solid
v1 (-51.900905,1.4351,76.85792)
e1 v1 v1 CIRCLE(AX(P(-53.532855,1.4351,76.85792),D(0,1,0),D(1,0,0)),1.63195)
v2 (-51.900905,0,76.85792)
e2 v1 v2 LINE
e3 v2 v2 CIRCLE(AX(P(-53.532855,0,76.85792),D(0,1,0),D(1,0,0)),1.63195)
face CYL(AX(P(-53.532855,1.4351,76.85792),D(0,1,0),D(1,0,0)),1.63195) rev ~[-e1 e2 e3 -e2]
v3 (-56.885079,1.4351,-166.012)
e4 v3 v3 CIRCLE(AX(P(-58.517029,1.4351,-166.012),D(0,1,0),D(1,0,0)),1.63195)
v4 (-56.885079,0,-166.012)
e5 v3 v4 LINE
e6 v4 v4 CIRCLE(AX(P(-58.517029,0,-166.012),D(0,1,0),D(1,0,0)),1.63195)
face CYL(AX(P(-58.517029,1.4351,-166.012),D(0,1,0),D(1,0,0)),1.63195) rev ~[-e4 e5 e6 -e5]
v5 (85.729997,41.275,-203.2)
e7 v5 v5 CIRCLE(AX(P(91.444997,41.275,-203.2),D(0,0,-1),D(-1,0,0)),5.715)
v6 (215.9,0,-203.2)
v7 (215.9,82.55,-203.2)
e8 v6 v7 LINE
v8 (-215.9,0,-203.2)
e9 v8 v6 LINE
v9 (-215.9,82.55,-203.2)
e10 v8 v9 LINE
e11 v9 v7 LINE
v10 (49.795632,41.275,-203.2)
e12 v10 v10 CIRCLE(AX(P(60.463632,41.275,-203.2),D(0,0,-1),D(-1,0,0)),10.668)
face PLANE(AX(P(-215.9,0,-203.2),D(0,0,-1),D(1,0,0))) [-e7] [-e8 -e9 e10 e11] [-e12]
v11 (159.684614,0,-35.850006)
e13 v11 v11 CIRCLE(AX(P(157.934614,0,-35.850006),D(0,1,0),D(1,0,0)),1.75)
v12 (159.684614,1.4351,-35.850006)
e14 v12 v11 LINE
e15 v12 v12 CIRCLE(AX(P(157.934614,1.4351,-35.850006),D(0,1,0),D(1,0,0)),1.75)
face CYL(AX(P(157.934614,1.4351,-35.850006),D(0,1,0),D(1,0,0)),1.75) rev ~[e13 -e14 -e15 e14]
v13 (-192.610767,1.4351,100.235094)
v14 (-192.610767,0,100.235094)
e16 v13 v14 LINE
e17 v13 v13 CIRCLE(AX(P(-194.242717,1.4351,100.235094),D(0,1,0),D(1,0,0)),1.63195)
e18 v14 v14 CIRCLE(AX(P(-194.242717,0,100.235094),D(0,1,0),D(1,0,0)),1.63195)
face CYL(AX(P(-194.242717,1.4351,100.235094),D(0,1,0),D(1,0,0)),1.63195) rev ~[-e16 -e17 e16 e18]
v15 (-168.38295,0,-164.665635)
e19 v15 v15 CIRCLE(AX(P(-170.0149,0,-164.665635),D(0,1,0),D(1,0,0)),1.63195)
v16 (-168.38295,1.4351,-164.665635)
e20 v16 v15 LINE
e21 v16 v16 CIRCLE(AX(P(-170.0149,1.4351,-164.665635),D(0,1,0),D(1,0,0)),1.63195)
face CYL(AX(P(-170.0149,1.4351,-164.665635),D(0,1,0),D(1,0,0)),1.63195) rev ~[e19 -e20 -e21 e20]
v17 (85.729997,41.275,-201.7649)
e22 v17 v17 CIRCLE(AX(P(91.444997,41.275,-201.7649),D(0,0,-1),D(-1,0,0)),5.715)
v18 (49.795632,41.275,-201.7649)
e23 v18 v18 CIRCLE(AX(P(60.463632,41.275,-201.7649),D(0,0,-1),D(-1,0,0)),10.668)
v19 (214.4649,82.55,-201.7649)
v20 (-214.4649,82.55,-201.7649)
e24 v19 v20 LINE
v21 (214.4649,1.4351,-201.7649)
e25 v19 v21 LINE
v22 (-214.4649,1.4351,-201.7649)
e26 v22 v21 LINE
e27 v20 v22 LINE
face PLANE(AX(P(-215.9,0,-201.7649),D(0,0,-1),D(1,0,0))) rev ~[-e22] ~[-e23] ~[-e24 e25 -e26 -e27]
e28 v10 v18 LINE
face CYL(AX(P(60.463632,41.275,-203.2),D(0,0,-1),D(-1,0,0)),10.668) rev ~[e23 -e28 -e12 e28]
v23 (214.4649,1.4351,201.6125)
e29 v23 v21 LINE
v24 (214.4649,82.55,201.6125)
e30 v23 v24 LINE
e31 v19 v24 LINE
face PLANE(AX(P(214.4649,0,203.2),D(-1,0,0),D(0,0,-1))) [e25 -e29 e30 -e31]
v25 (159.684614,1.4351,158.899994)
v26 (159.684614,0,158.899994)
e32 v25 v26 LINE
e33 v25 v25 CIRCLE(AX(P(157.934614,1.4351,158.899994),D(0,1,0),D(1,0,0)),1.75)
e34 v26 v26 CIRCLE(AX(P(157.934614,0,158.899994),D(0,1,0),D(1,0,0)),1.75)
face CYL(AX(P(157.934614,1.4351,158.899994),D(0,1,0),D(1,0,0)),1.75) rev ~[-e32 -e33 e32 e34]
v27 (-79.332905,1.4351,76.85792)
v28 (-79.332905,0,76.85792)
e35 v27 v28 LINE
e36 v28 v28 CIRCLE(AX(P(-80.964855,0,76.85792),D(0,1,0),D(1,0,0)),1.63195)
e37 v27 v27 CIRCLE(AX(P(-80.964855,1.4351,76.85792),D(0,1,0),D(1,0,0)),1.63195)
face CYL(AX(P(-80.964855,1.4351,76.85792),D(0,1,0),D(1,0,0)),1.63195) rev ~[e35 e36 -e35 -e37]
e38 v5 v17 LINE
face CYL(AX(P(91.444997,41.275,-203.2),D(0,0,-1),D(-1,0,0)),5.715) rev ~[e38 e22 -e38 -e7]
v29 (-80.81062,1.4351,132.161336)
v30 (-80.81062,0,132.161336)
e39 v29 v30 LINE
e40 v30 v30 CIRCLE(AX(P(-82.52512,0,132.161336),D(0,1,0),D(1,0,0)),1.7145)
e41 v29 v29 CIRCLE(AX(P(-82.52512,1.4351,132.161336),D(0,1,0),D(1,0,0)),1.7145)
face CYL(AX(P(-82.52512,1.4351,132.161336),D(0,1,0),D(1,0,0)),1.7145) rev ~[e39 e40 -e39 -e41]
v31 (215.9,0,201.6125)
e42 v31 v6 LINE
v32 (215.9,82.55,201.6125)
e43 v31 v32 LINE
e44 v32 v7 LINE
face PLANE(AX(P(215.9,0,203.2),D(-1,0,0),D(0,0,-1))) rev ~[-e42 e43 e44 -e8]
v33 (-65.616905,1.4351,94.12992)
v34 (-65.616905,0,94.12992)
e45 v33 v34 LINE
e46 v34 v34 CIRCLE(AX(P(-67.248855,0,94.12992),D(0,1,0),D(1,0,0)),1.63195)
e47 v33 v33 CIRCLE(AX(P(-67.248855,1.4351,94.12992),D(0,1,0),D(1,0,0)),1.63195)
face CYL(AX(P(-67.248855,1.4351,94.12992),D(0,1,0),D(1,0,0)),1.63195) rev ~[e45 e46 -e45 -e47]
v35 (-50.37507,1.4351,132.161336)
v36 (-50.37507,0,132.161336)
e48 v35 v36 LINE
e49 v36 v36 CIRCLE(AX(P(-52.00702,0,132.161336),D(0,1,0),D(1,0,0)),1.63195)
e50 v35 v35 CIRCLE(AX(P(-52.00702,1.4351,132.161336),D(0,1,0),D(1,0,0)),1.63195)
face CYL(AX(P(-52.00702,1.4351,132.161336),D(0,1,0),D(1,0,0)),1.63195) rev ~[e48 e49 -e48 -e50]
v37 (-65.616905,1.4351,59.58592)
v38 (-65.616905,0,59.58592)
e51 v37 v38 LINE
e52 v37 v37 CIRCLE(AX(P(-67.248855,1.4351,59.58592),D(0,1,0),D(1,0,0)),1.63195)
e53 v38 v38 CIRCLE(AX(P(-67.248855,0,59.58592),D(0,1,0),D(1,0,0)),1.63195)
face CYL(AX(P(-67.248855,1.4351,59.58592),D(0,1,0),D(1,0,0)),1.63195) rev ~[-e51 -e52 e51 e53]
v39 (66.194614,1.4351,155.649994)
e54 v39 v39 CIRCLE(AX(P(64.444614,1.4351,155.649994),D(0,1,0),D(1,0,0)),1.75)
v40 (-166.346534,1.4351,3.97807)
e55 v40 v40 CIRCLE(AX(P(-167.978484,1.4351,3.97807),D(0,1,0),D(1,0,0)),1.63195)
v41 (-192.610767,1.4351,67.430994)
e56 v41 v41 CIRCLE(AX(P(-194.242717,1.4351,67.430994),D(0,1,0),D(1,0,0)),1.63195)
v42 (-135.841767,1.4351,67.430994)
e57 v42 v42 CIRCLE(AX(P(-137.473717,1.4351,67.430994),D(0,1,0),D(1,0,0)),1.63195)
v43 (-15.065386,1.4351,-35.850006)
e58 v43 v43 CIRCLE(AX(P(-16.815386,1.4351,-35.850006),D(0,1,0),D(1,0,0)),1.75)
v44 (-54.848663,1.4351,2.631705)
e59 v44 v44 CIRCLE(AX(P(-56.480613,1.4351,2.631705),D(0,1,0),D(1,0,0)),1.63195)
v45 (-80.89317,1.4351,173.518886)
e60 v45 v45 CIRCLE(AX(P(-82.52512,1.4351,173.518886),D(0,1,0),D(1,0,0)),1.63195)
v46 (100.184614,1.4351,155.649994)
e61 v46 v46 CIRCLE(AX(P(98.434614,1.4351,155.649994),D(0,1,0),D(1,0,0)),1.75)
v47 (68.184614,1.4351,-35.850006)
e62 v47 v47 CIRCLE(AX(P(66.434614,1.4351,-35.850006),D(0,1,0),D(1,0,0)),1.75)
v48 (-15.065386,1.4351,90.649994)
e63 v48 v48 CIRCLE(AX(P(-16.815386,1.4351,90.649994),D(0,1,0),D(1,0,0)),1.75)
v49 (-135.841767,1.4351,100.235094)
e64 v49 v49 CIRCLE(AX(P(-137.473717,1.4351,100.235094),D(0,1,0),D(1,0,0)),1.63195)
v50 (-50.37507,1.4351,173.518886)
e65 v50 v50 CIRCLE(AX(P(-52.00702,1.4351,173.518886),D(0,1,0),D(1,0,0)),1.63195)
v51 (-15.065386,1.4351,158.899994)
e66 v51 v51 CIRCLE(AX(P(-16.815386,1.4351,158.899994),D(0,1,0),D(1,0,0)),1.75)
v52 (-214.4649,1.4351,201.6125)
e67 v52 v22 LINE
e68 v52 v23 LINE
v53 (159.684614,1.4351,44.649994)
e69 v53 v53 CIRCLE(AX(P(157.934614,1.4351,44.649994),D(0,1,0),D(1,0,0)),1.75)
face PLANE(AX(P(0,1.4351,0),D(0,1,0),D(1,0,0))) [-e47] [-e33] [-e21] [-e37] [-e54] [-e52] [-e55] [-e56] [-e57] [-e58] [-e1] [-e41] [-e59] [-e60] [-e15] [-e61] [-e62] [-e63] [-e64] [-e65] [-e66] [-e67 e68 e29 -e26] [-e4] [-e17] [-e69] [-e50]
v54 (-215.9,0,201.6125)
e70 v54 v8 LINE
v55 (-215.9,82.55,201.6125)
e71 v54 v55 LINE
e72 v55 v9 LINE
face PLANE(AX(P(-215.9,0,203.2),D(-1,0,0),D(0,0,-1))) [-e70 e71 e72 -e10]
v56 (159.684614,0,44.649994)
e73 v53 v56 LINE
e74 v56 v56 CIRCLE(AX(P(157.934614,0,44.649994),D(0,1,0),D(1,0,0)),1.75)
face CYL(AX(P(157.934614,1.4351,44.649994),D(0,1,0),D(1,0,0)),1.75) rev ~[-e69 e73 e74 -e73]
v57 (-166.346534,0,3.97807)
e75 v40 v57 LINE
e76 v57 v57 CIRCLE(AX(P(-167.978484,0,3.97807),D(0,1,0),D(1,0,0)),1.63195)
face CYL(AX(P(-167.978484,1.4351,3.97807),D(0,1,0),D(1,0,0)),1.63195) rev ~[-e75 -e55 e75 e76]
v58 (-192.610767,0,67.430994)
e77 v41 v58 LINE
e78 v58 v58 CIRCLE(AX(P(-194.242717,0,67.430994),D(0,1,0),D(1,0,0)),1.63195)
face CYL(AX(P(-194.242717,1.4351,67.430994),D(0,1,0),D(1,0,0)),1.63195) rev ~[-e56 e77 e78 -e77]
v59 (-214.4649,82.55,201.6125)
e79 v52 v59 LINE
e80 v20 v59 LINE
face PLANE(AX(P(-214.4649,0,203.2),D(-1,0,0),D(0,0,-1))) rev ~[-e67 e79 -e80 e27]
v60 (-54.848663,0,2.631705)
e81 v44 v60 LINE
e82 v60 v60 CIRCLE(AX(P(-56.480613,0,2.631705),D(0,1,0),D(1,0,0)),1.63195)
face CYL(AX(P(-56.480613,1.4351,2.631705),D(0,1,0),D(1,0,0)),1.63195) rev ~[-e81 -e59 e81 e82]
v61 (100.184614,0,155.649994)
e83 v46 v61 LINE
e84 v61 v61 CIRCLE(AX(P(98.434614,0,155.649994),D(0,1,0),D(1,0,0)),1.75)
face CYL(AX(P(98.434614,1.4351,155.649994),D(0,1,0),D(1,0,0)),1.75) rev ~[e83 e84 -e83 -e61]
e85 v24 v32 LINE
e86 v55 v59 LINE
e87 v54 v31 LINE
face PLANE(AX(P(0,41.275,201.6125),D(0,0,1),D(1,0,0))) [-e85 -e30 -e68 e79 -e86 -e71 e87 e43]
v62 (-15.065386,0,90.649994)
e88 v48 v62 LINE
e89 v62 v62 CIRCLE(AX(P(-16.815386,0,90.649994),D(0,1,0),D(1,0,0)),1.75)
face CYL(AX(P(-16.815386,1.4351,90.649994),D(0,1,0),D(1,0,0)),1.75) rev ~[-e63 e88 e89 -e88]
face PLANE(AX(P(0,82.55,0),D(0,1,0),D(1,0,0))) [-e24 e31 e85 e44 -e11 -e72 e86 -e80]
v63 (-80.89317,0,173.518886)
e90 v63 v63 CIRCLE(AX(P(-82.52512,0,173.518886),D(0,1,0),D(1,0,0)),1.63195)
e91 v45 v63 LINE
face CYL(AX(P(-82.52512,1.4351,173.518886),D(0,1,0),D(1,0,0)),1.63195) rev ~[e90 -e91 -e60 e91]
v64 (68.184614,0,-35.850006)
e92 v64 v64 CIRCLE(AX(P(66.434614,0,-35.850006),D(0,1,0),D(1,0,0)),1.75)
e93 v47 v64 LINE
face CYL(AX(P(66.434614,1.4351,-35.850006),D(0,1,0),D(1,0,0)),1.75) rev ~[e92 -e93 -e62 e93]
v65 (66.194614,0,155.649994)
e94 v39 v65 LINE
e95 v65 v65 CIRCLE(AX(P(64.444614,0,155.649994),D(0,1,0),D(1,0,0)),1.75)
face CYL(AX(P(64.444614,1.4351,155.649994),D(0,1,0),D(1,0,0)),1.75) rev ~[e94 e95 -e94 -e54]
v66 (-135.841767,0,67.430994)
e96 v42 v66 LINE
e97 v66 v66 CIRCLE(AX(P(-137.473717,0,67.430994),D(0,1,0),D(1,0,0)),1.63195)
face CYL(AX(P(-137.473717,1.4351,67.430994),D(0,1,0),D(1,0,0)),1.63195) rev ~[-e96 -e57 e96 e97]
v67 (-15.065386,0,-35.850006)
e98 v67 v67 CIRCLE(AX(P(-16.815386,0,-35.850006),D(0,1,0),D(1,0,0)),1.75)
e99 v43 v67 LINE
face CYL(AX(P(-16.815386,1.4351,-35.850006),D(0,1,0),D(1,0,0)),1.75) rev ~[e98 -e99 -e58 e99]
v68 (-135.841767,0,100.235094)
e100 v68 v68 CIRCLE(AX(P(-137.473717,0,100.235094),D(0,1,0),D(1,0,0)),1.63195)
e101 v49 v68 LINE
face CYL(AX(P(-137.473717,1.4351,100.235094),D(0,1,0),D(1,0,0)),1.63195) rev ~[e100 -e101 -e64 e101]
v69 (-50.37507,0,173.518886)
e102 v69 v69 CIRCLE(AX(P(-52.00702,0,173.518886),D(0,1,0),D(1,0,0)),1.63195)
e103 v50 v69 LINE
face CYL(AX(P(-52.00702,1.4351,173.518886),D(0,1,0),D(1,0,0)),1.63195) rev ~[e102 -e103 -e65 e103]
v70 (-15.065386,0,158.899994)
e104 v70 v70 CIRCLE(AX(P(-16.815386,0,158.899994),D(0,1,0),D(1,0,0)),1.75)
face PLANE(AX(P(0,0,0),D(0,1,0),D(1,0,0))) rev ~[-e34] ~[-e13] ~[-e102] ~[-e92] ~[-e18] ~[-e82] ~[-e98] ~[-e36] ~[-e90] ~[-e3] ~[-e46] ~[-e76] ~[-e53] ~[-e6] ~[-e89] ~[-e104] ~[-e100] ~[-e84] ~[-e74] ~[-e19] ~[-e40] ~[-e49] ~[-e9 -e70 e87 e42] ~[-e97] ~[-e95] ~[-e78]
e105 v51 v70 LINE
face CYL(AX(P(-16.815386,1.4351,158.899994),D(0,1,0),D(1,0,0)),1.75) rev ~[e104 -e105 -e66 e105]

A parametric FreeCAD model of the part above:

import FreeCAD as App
import Part
import Sketcher
from FreeCAD import Vector
Q = App.Units.Quantity


def faces_at(feature, points):
    """Names of the faces that lie closest to the given points."""
    faces = feature.Shape.Faces
    near = lambda p: min(range(len(faces)), key=lambda i: faces[i].distToShape(Part.Vertex(*p))[0])
    return sorted({f"Face{near(p) + 1}" for p in points})

doc = App.newDocument("Part")
body = doc.addObject("PartDesign::Body", "Body")

# Sketch on XZ plane
sketch1 = body.newObject("Sketcher::SketchObject", "Sketch")
sketch1.AttachmentSupport = (doc.getObject("XZ_Plane"), [""])
sketch1.MapMode = "FlatFace"
sketch1.addGeometry([
    Part.LineSegment(Vector(-215.9, -203.2, 0), Vector(-215.9, 203.2, 0)),
    Part.LineSegment(Vector(-215.9, 203.2, 0), Vector(215.9, 203.2, 0)),
    Part.LineSegment(Vector(215.9, 203.2, 0), Vector(215.9, -203.2, 0)),
    Part.LineSegment(Vector(215.9, -203.2, 0), Vector(-215.9, -203.2, 0)),
], False)
sketch1.addConstraint([
    Sketcher.Constraint("Coincident", 0, 2, 1, 1),
    Sketcher.Constraint("Coincident", 1, 2, 2, 1),
    Sketcher.Constraint("Coincident", 2, 2, 3, 1),
    Sketcher.Constraint("Coincident", 3, 2, 0, 1),
    Sketcher.Constraint("Vertical", 0),
    Sketcher.Constraint("Horizontal", 1),
    Sketcher.Constraint("Vertical", 2),
    Sketcher.Constraint("Horizontal", 3),
    Sketcher.Constraint("Symmetric", 0, 2, 2, 2, -1, 1),
    Sketcher.Constraint("DistanceX", 1, 1, 1, 2, Q("17 in")),
    Sketcher.Constraint("DistanceY", 0, 1, 0, 2, Q("16 in")),
])
pad1 = body.newObject("PartDesign::Pad", "Pad")
pad1.Profile = sketch1
pad1.Length = Q("3.25 in")
pad1.Reversed = True
doc.recompute()

thickness = body.newObject("PartDesign::Thickness", "Thickness")
thickness.Base = (pad1, faces_at(pad1, [(0, 82.55, 0)]))
thickness.Value = Q("0.0565 in")
thickness.Reversed = True
thickness.Join = "Intersection"

# Sketch on XY plane
sketch2 = body.newObject("Sketcher::SketchObject", "Sketch001")
sketch2.AttachmentSupport = (doc.getObject("XY_Plane"), [""])
sketch2.MapMode = "FlatFace"
sketch2.AttachmentOffset = App.Placement(Vector(0, 0, 8 * 25.4), App.Rotation())
sketch2.addGeometry([
    Part.LineSegment(Vector(-215.9, 82.55, 0), Vector(-215.9, 0, 0)),
    Part.LineSegment(Vector(-215.9, 0, 0), Vector(215.9, 0, 0)),
    Part.LineSegment(Vector(215.9, 0, 0), Vector(215.9, 82.55, 0)),
    Part.LineSegment(Vector(215.9, 82.55, 0), Vector(-215.9, 82.55, 0)),
], False)
sketch2.addConstraint([
    Sketcher.Constraint("Coincident", 0, 2, 1, 1),
    Sketcher.Constraint("Coincident", 1, 2, 2, 1),
    Sketcher.Constraint("Coincident", 2, 2, 3, 1),
    Sketcher.Constraint("Coincident", 3, 2, 0, 1),
    Sketcher.Constraint("Vertical", 0),
    Sketcher.Constraint("Horizontal", 1),
    Sketcher.Constraint("Vertical", 2),
    Sketcher.Constraint("Horizontal", 3),
    Sketcher.Constraint("Symmetric", 0, 2, 1, 2, -1, 1),
    Sketcher.Constraint("DistanceX", 1, 1, 1, 2, Q("17 in")),
    Sketcher.Constraint("DistanceY", 0, 2, 0, 1, Q("3.25 in")),
])
pocket1 = body.newObject("PartDesign::Pocket", "Pocket")
pocket1.Profile = sketch2
pocket1.Length = Q("0.0625 in")

# Sketch on XZ plane
sketch3 = body.newObject("Sketcher::SketchObject", "Sketch002")
sketch3.AttachmentSupport = (doc.getObject("XZ_Plane"), [""])
sketch3.MapMode = "FlatFace"
sketch3.AttachmentOffset = App.Placement(Vector(0, 0, -0.0565 * 25.4), App.Rotation())
sketch3.addGeometry([
    Part.Circle(Vector(-170.0149, -164.665635, 0), Vector(0, 0, 1), 1.63195),
    Part.Circle(Vector(-58.517029, -166.012, 0), Vector(0, 0, 1), 1.63195),
    Part.Circle(Vector(-167.978484, 3.97807, 0), Vector(0, 0, 1), 1.63195),
    Part.Circle(Vector(-56.480613, 2.631705, 0), Vector(0, 0, 1), 1.63195),
], False)
sketch3.addConstraint([
    Sketcher.Constraint("Equal", 0, 1),
    Sketcher.Constraint("Equal", 1, 2),
    Sketcher.Constraint("Equal", 2, 3),
    Sketcher.Constraint("Diameter", 0, Q("0.1285 in")),
    Sketcher.Constraint("DistanceX", 0, 3, -1, 1, Q("6.6935 in")),
    Sketcher.Constraint("DistanceY", 1, 3, -1, 1, Q("166.012 mm")),
    Sketcher.Constraint("DistanceX", 1, 3, -1, 1, Q("58.517029 mm")),
    Sketcher.Constraint("DistanceY", -1, 1, 2, 3, Q("3.97807 mm")),
    Sketcher.Constraint("DistanceX", 2, 3, 3, 3, Q("111.497871 mm")),
    Sketcher.Constraint("DistanceY", 0, 3, 3, 3, Q("167.29734 mm")),
    Sketcher.Constraint("DistanceY", 0, 3, -1, 1, Q("164.665635 mm")),
    Sketcher.Constraint("DistanceX", 2, 3, -1, 1, Q("167.978484 mm")),
])
pocket2 = body.newObject("PartDesign::Pocket", "Pocket001")
pocket2.Profile = sketch3
pocket2.Length = Q("6.3 in")
pocket2.Reversed = True

# Sketch on XY plane
sketch4 = body.newObject("Sketcher::SketchObject", "Sketch003")
sketch4.AttachmentSupport = (doc.getObject("XY_Plane"), [""])
sketch4.MapMode = "FlatFace"
sketch4.AttachmentOffset = App.Placement(Vector(0, 0, -8 * 25.4), App.Rotation())
sketch4.addGeometry([
    Part.Circle(Vector(60.463632, 41.275, 0), Vector(0, 0, 1), 10.668),
    Part.Circle(Vector(91.444997, 41.275, 0), Vector(0, 0, 1), 5.715),
], False)
sketch4.addConstraint([
    Sketcher.Constraint("Horizontal", 0, 3, 1, 3),
    Sketcher.Constraint("Diameter", 0, Q("0.84 in")),
    Sketcher.Constraint("Diameter", 1, Q("0.45 in")),
    Sketcher.Constraint("DistanceY", -1, 1, 0, 3, Q("1.625 in")),
    Sketcher.Constraint("DistanceX", -1, 1, 0, 3, Q("60.463632 mm")),
    Sketcher.Constraint("DistanceX", -1, 1, 1, 3, Q("91.444997 mm")),
])
pocket3 = body.newObject("PartDesign::Pocket", "Pocket002")
pocket3.Profile = sketch4
pocket3.Type = "ThroughAll"
pocket3.Reversed = True

# Sketch on XZ plane
sketch5 = body.newObject("Sketcher::SketchObject", "Sketch004")
sketch5.AttachmentSupport = (doc.getObject("XZ_Plane"), [""])
sketch5.MapMode = "FlatFace"
sketch5.AttachmentOffset = App.Placement(Vector(0, 0, -0.0565 * 25.4), App.Rotation())
sketch5.addGeometry([
    Part.Circle(Vector(-52.00702, 132.161336, 0), Vector(0, 0, 1), 1.63195),  # 0
    Part.Circle(Vector(-52.00702, 173.518886, 0), Vector(0, 0, 1), 1.63195),  # 1
    Part.Circle(Vector(-82.52512, 173.518886, 0), Vector(0, 0, 1), 1.63195),  # 2
    Part.Circle(Vector(-82.52512, 132.161336, 0), Vector(0, 0, 1), 1.7145),  # 3
    Part.Circle(Vector(-137.473717, 100.235094, 0), Vector(0, 0, 1), 1.63195),  # 4
    Part.Circle(Vector(-194.242717, 100.235094, 0), Vector(0, 0, 1), 1.63195),  # 5
    Part.Circle(Vector(-137.473717, 67.430994, 0), Vector(0, 0, 1), 1.63195),  # 6
    Part.Circle(Vector(-194.242717, 67.430994, 0), Vector(0, 0, 1), 1.63195),  # 7
], False)
sketch5.addConstraint([
    Sketcher.Constraint("Equal", 0, 1),
    Sketcher.Constraint("Equal", 1, 2),
    Sketcher.Constraint("Equal", 2, 4),
    Sketcher.Constraint("Equal", 4, 5),
    Sketcher.Constraint("Equal", 5, 6),
    Sketcher.Constraint("Equal", 6, 7),
    Sketcher.Constraint("Horizontal", 1, 3, 2, 3),
    Sketcher.Constraint("Horizontal", 0, 3, 3, 3),
    Sketcher.Constraint("Horizontal", 4, 3, 5, 3),
    Sketcher.Constraint("Horizontal", 6, 3, 7, 3),
    Sketcher.Constraint("Vertical", 0, 3, 1, 3),
    Sketcher.Constraint("Vertical", 2, 3, 3, 3),
    Sketcher.Constraint("Vertical", 4, 3, 6, 3),
    Sketcher.Constraint("Vertical", 5, 3, 7, 3),
    Sketcher.Constraint("Diameter", 3, Q("0.135 in")),
    Sketcher.Constraint("Diameter", 0, Q("0.1285 in")),
    Sketcher.Constraint("DistanceX", 5, 3, 4, 3, Q("2.235 in")),
    Sketcher.Constraint("DistanceX", 2, 3, 1, 3, Q("1.2015 in")),
    Sketcher.Constraint("DistanceY", 6, 3, 4, 3, Q("1.2915 in")),
    Sketcher.Constraint("DistanceX", 0, 3, -1, 1, Q("52.00702 mm")),
    Sketcher.Constraint("DistanceY", 0, 3, 1, 3, Q("41.35755 mm")),
    Sketcher.Constraint("DistanceY", 4, 3, 3, 3, Q("31.926241 mm")),
    Sketcher.Constraint("DistanceY", -1, 1, 0, 3, Q("132.161336 mm")),
    Sketcher.Constraint("DistanceX", 4, 3, -1, 1, Q("137.473717 mm")),
])
pocket4 = body.newObject("PartDesign::Pocket", "Pocket003")
pocket4.Profile = sketch5
pocket4.Length = Q("0.1 in")
pocket4.Reversed = True

# Sketch on XZ plane
sketch6 = body.newObject("Sketcher::SketchObject", "Sketch005")
sketch6.AttachmentSupport = (doc.getObject("XZ_Plane"), [""])
sketch6.MapMode = "FlatFace"
sketch6.AttachmentOffset = App.Placement(Vector(0, 0, -0.0565 * 25.4), App.Rotation())
sketch6.addGeometry([
    Part.Circle(Vector(157.934614, -35.850006, 0), Vector(0, 0, 1), 1.75),  # 0
    Part.Circle(Vector(157.934614, 44.649994, 0), Vector(0, 0, 1), 1.75),  # 1
    Part.Circle(Vector(157.934614, 158.899994, 0), Vector(0, 0, 1), 1.75),  # 2
    Part.Circle(Vector(98.434614, 155.649994, 0), Vector(0, 0, 1), 1.75),  # 3
    Part.Circle(Vector(64.444614, 155.649994, 0), Vector(0, 0, 1), 1.75),  # 4
    Part.Circle(Vector(-16.815386, 158.899994, 0), Vector(0, 0, 1), 1.75),  # 5
    Part.Circle(Vector(66.434614, -35.850006, 0), Vector(0, 0, 1), 1.75),  # 6
    Part.Circle(Vector(-16.815386, -35.850006, 0), Vector(0, 0, 1), 1.75),  # 7
    Part.Circle(Vector(-16.815386, 90.649994, 0), Vector(0, 0, 1), 1.75),  # 8
], False)
sketch6.addConstraint([
    Sketcher.Constraint("Equal", 0, 1),
    Sketcher.Constraint("Equal", 1, 2),
    Sketcher.Constraint("Equal", 2, 3),
    Sketcher.Constraint("Equal", 3, 4),
    Sketcher.Constraint("Equal", 4, 5),
    Sketcher.Constraint("Equal", 5, 6),
    Sketcher.Constraint("Equal", 6, 7),
    Sketcher.Constraint("Equal", 7, 8),
    Sketcher.Constraint("Horizontal", 3, 3, 4, 3),
    Sketcher.Constraint("Horizontal", 2, 3, 5, 3),
    Sketcher.Constraint("Horizontal", 0, 3, 6, 3),
    Sketcher.Constraint("Horizontal", 6, 3, 7, 3),
    Sketcher.Constraint("Vertical", 0, 3, 1, 3),
    Sketcher.Constraint("Vertical", 1, 3, 2, 3),
    Sketcher.Constraint("Vertical", 5, 3, 7, 3),
    Sketcher.Constraint("Vertical", 7, 3, 8, 3),
    Sketcher.Constraint("Diameter", 0, Q("3.5 mm")),
    Sketcher.Constraint("DistanceY", 0, 3, 1, 3, Q("80.5 mm")),
    Sketcher.Constraint("DistanceY", 1, 3, 2, 3, Q("114.25 mm")),
    Sketcher.Constraint("DistanceX", 3, 3, 2, 3, Q("59.5 mm")),
    Sketcher.Constraint("DistanceY", 3, 3, 2, 3, Q("3.25 mm")),
    Sketcher.Constraint("DistanceX", 4, 3, 3, 3, Q("33.99 mm")),
    Sketcher.Constraint("DistanceX", 5, 3, 4, 3, Q("81.26 mm")),
    Sketcher.Constraint("DistanceX", 6, 3, 0, 3, Q("91.5 mm")),
    Sketcher.Constraint("DistanceY", 8, 3, 5, 3, Q("68.25 mm")),
    Sketcher.Constraint("DistanceX", -1, 1, 0, 3, Q("157.934614 mm")),
    Sketcher.Constraint("DistanceY", 0, 3, -1, 1, Q("35.850006 mm")),
])
pocket5 = body.newObject("PartDesign::Pocket", "Pocket004")
pocket5.Profile = sketch6
pocket5.Length = Q("6.3 in")
pocket5.Reversed = True

# Sketch on XZ plane
sketch7 = body.newObject("Sketcher::SketchObject", "Sketch006")
sketch7.AttachmentSupport = (doc.getObject("XZ_Plane"), [""])
sketch7.MapMode = "FlatFace"
sketch7.AttachmentOffset = App.Placement(Vector(0, 0, -0.0565 * 25.4), App.Rotation())
sketch7.addGeometry([
    Part.Circle(Vector(-67.248855, 59.58592, 0), Vector(0, 0, 1), 1.63195),
    Part.Circle(Vector(-67.248855, 94.12992, 0), Vector(0, 0, 1), 1.63195),
    Part.Circle(Vector(-80.964855, 76.85792, 0), Vector(0, 0, 1), 1.63195),
    Part.Circle(Vector(-53.532855, 76.85792, 0), Vector(0, 0, 1), 1.63195),
], False)
sketch7.addConstraint([
    Sketcher.Constraint("Equal", 0, 1),
    Sketcher.Constraint("Equal", 1, 2),
    Sketcher.Constraint("Equal", 2, 3),
    Sketcher.Constraint("Horizontal", 2, 3, 3, 3),
    Sketcher.Constraint("Vertical", 0, 3, 1, 3),
    Sketcher.Constraint("Diameter", 0, Q("0.1285 in")),
    Sketcher.Constraint("DistanceY", 0, 3, 1, 3, Q("1.36 in")),
    Sketcher.Constraint("DistanceX", 2, 3, 1, 3, Q("0.54 in")),
    Sketcher.Constraint("DistanceY", 2, 3, 1, 3, Q("0.68 in")),
    Sketcher.Constraint("DistanceX", 1, 3, 3, 3, Q("0.54 in")),
    Sketcher.Constraint("DistanceY", -1, 1, 0, 3, Q("59.58592 mm")),
    Sketcher.Constraint("DistanceX", 0, 3, -1, 1, Q("67.248855 mm")),
])
pocket6 = body.newObject("PartDesign::Pocket", "Pocket005")
pocket6.Profile = sketch7
pocket6.Type = "ThroughAll"
pocket6.Reversed = True

doc.recompute()
